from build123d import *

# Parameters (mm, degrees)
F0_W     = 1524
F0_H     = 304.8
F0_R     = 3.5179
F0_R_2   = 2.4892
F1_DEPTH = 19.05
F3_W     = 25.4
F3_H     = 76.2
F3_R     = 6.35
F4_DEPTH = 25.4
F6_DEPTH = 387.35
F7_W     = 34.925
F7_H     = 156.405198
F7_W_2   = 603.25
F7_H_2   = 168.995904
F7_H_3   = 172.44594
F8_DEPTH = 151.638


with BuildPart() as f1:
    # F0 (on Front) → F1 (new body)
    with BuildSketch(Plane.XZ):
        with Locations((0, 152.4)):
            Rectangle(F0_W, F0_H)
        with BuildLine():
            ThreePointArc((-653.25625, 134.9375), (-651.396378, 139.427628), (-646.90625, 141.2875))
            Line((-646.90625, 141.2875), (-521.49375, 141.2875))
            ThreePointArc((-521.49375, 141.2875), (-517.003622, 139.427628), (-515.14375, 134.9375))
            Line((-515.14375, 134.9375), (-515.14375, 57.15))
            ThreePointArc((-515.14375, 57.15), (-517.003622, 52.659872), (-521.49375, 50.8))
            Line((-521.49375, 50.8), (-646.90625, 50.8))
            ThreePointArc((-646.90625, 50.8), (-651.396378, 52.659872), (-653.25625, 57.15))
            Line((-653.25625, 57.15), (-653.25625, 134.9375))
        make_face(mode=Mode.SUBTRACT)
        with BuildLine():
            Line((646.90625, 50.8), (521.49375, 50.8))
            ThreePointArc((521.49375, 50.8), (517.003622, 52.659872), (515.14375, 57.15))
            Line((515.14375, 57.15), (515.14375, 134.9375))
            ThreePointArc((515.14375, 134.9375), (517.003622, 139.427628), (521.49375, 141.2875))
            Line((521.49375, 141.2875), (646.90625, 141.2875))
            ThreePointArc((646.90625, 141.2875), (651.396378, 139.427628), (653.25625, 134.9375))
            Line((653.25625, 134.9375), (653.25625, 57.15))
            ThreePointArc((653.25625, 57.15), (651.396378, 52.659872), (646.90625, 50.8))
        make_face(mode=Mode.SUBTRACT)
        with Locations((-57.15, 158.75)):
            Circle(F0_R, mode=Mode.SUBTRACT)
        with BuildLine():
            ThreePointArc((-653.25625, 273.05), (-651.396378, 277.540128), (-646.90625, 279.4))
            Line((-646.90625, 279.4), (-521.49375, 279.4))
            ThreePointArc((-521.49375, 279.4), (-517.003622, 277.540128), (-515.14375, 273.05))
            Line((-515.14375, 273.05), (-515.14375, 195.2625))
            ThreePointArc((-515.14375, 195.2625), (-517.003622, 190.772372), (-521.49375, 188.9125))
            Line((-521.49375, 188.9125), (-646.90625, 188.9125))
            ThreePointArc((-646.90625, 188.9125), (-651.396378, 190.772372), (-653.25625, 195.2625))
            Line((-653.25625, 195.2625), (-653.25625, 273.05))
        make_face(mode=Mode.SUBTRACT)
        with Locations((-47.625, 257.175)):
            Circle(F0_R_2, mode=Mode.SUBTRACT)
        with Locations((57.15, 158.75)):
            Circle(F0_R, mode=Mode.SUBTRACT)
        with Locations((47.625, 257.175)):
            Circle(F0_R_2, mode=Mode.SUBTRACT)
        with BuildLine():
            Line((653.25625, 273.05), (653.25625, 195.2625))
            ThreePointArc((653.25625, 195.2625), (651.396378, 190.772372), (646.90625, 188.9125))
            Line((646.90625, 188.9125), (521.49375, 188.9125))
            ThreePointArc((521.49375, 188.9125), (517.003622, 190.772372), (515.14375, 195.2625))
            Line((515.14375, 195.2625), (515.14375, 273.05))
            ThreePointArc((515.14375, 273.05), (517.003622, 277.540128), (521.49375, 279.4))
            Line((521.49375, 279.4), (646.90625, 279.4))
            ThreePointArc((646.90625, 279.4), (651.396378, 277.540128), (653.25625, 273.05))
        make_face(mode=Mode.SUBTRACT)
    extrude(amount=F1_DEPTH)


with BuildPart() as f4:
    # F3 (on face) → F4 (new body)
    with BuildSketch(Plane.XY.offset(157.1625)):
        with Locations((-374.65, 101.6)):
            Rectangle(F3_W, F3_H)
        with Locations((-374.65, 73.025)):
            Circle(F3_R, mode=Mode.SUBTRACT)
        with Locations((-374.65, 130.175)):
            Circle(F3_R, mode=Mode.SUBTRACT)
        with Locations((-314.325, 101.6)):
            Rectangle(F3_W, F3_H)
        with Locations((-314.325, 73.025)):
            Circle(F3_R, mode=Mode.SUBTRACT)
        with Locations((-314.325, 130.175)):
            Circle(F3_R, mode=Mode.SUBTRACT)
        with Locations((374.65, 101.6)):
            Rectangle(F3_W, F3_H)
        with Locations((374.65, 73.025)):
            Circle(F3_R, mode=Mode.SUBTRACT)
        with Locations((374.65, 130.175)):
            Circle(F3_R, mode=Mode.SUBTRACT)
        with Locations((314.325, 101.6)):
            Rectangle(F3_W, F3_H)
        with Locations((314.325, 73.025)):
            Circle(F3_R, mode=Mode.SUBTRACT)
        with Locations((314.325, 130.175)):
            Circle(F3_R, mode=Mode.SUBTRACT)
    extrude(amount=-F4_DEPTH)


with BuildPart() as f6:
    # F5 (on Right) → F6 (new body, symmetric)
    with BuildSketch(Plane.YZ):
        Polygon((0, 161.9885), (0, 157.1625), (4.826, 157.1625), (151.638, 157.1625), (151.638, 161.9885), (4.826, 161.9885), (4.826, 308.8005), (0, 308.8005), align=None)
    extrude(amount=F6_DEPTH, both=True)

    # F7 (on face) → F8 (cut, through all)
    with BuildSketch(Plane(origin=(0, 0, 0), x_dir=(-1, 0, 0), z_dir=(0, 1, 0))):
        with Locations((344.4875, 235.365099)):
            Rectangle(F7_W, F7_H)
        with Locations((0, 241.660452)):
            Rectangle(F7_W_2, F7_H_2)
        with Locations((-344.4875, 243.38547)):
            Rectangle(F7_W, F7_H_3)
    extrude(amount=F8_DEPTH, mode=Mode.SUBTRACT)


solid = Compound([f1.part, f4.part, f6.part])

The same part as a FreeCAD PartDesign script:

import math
import FreeCAD as App
import Part
import Sketcher
Q = App.Units.Quantity


def add_polygon(sketch, points):
    """Adds a closed chain of lines whose ends are joined by coincident constraints."""
    first, n = sketch.GeometryCount, len(points)
    for a, b in zip(points, points[1:] + points[:1]):
        sketch.addGeometry(Part.LineSegment(App.Vector(*a, 0), App.Vector(*b, 0)), False)
    for i in range(n):
        sketch.addConstraint(Sketcher.Constraint("Coincident", first + i, 2, first + (i + 1) % n, 1))

doc = App.newDocument("Part")
body = doc.addObject("PartDesign::Body", "Body")

sketch1 = doc.addObject("Sketcher::SketchObject", "Sketch")
body.addObject(sketch1)
sketch1.AttachmentSupport = (doc.XZ_Plane, [""])
sketch1.MapMode = "FlatFace"
add_polygon(sketch1, [(-762, 304.8), (-762, 0), (762, 0), (762, 304.8)])
sketch1.addGeometry(Part.LineSegment(App.Vector(-653.3, 57.1, 0), App.Vector(-653.3, 134.9, 0)), False)
sketch1.addGeometry(Part.ArcOfCircle(Part.Circle(App.Vector(-646.9, 134.9, 0), App.Vector(0, 0, 1), 6.4), math.radians(90), math.radians(180)), False)
sketch1.addGeometry(Part.LineSegment(App.Vector(-646.9, 141.3, 0), App.Vector(-521.5, 141.3, 0)), False)
sketch1.addGeometry(Part.ArcOfCircle(Part.Circle(App.Vector(-521.5, 134.9, 0), App.Vector(0, 0, 1), 6.4), math.radians(0), math.radians(90)), False)
sketch1.addGeometry(Part.LineSegment(App.Vector(-515.1, 134.9, 0), App.Vector(-515.1, 57.1, 0)), False)
sketch1.addGeometry(Part.ArcOfCircle(Part.Circle(App.Vector(-521.5, 57.2, 0), App.Vector(0, 0, 1), 6.4), math.radians(-90), math.radians(0)), False)
sketch1.addGeometry(Part.LineSegment(App.Vector(-521.5, 50.8, 0), App.Vector(-646.9, 50.8, 0)), False)
sketch1.addGeometry(Part.ArcOfCircle(Part.Circle(App.Vector(-646.9, 57.2, 0), App.Vector(0, 0, 1), 6.4), math.radians(-180), math.radians(-90)), False)
sketch1.addGeometry(Part.Circle(App.Vector(-57.1, 158.8, 0), App.Vector(0, 0, 1), 3.5), False)
sketch1.addGeometry(Part.ArcOfCircle(Part.Circle(App.Vector(646.9, 57.2, 0), App.Vector(0, 0, 1), 6.4), math.radians(-90), math.radians(0)), False)
sketch1.addGeometry(Part.LineSegment(App.Vector(646.9, 50.8, 0), App.Vector(521.5, 50.8, 0)), False)
sketch1.addGeometry(Part.ArcOfCircle(Part.Circle(App.Vector(521.5, 57.2, 0), App.Vector(0, 0, 1), 6.4), math.radians(-180), math.radians(-90)), False)
sketch1.addGeometry(Part.LineSegment(App.Vector(515.1, 57.1, 0), App.Vector(515.1, 134.9, 0)), False)
sketch1.addGeometry(Part.ArcOfCircle(Part.Circle(App.Vector(521.5, 134.9, 0), App.Vector(0, 0, 1), 6.4), math.radians(90), math.radians(180)), False)
sketch1.addGeometry(Part.LineSegment(App.Vector(521.5, 141.3, 0), App.Vector(646.9, 141.3, 0)), False)
sketch1.addGeometry(Part.ArcOfCircle(Part.Circle(App.Vector(646.9, 134.9, 0), App.Vector(0, 0, 1), 6.4), math.radians(0), math.radians(90)), False)
sketch1.addGeometry(Part.LineSegment(App.Vector(653.3, 134.9, 0), App.Vector(653.3, 57.1, 0)), False)
sketch1.addGeometry(Part.Circle(App.Vector(57.1, 158.8, 0), App.Vector(0, 0, 1), 3.5), False)
sketch1.addGeometry(Part.LineSegment(App.Vector(-653.3, 195.3, 0), App.Vector(-653.3, 273.1, 0)), False)
sketch1.addGeometry(Part.ArcOfCircle(Part.Circle(App.Vector(-646.9, 273, 0), App.Vector(0, 0, 1), 6.4), math.radians(90), math.radians(180)), False)
sketch1.addGeometry(Part.LineSegment(App.Vector(-646.9, 279.4, 0), App.Vector(-521.5, 279.4, 0)), False)
sketch1.addGeometry(Part.ArcOfCircle(Part.Circle(App.Vector(-521.5, 273, 0), App.Vector(0, 0, 1), 6.4), math.radians(0), math.radians(90)), False)
sketch1.addGeometry(Part.LineSegment(App.Vector(-515.1, 273.1, 0), App.Vector(-515.1, 195.3, 0)), False)
sketch1.addGeometry(Part.ArcOfCircle(Part.Circle(App.Vector(-521.5, 195.3, 0), App.Vector(0, 0, 1), 6.4), math.radians(-90), math.radians(0)), False)
sketch1.addGeometry(Part.LineSegment(App.Vector(-521.5, 188.9, 0), App.Vector(-646.9, 188.9, 0)), False)
sketch1.addGeometry(Part.ArcOfCircle(Part.Circle(App.Vector(-646.9, 195.3, 0), App.Vector(0, 0, 1), 6.4), math.radians(-180), math.radians(-90)), False)
sketch1.addGeometry(Part.Circle(App.Vector(-47.6, 257.2, 0), App.Vector(0, 0, 1), 2.5), False)
sketch1.addGeometry(Part.Circle(App.Vector(47.6, 257.2, 0), App.Vector(0, 0, 1), 2.5), False)
sketch1.addGeometry(Part.ArcOfCircle(Part.Circle(App.Vector(646.9, 273, 0), App.Vector(0, 0, 1), 6.4), math.radians(0), math.radians(90)), False)
sketch1.addGeometry(Part.LineSegment(App.Vector(653.3, 273.1, 0), App.Vector(653.3, 195.3, 0)), False)
sketch1.addGeometry(Part.ArcOfCircle(Part.Circle(App.Vector(646.9, 195.3, 0), App.Vector(0, 0, 1), 6.4), math.radians(-90), math.radians(0)), False)
sketch1.addGeometry(Part.LineSegment(App.Vector(646.9, 188.9, 0), App.Vector(521.5, 188.9, 0)), False)
sketch1.addGeometry(Part.ArcOfCircle(Part.Circle(App.Vector(521.5, 195.3, 0), App.Vector(0, 0, 1), 6.4), math.radians(-180), math.radians(-90)), False)
sketch1.addGeometry(Part.LineSegment(App.Vector(515.1, 195.3, 0), App.Vector(515.1, 273.1, 0)), False)
sketch1.addGeometry(Part.ArcOfCircle(Part.Circle(App.Vector(521.5, 273, 0), App.Vector(0, 0, 1), 6.4), math.radians(90), math.radians(180)), False)
sketch1.addGeometry(Part.LineSegment(App.Vector(521.5, 279.4, 0), App.Vector(646.9, 279.4, 0)), False)
sketch1.addConstraint([
    Sketcher.Constraint("Tangent", 4, 2, 5, 2),
    Sketcher.Constraint("Tangent", 5, 1, 6, 1),
    Sketcher.Constraint("Tangent", 6, 2, 7, 2),
    Sketcher.Constraint("Tangent", 7, 1, 8, 1),
    Sketcher.Constraint("Tangent", 8, 2, 9, 2),
    Sketcher.Constraint("Tangent", 9, 1, 10, 1),
    Sketcher.Constraint("Tangent", 10, 2, 11, 2),
    Sketcher.Constraint("Tangent", 11, 1, 4, 1),
    Sketcher.Constraint("Tangent", 13, 1, 14, 1),
    Sketcher.Constraint("Tangent", 14, 2, 15, 2),
    Sketcher.Constraint("Tangent", 15, 1, 16, 1),
    Sketcher.Constraint("Tangent", 16, 2, 17, 2),
    Sketcher.Constraint("Tangent", 17, 1, 18, 1),
    Sketcher.Constraint("Tangent", 18, 2, 19, 2),
    Sketcher.Constraint("Tangent", 19, 1, 20, 1),
    Sketcher.Constraint("Tangent", 20, 2, 13, 2),
    Sketcher.Constraint("Tangent", 22, 2, 23, 2),
    Sketcher.Constraint("Tangent", 23, 1, 24, 1),
    Sketcher.Constraint("Tangent", 24, 2, 25, 2),
    Sketcher.Constraint("Tangent", 25, 1, 26, 1),
    Sketcher.Constraint("Tangent", 26, 2, 27, 2),
    Sketcher.Constraint("Tangent", 27, 1, 28, 1),
    Sketcher.Constraint("Tangent", 28, 2, 29, 2),
    Sketcher.Constraint("Tangent", 29, 1, 22, 1),
    Sketcher.Constraint("Tangent", 32, 1, 33, 1),
    Sketcher.Constraint("Tangent", 33, 2, 34, 2),
    Sketcher.Constraint("Tangent", 34, 1, 35, 1),
    Sketcher.Constraint("Tangent", 35, 2, 36, 2),
    Sketcher.Constraint("Tangent", 36, 1, 37, 1),
    Sketcher.Constraint("Tangent", 37, 2, 38, 2),
    Sketcher.Constraint("Tangent", 38, 1, 39, 1),
    Sketcher.Constraint("Tangent", 39, 2, 32, 2),
    Sketcher.Constraint("Vertical", 0),
    Sketcher.Constraint("Horizontal", 1),
    Sketcher.Constraint("Vertical", 2),
    Sketcher.Constraint("Horizontal", 3),
    Sketcher.Constraint("Vertical", 4),
    Sketcher.Constraint("Horizontal", 6),
    Sketcher.Constraint("Vertical", 8),
    Sketcher.Constraint("Horizontal", 10),
    Sketcher.Constraint("Horizontal", 14),
    Sketcher.Constraint("Vertical", 16),
    Sketcher.Constraint("Horizontal", 18),
    Sketcher.Constraint("Vertical", 20),
    Sketcher.Constraint("Vertical", 22),
    Sketcher.Constraint("Horizontal", 24),
    Sketcher.Constraint("Vertical", 26),
    Sketcher.Constraint("Horizontal", 28),
    Sketcher.Constraint("Vertical", 33),
    Sketcher.Constraint("Horizontal", 35),
    Sketcher.Constraint("Vertical", 37),
    Sketcher.Constraint("Horizontal", 39),
    Sketcher.Constraint("Equal", 5, 7),
    Sketcher.Constraint("Equal", 7, 9),
    Sketcher.Constraint("Equal", 9, 11),
    Sketcher.Constraint("Equal", 11, 13),
    Sketcher.Constraint("Equal", 13, 15),
    Sketcher.Constraint("Equal", 15, 17),
    Sketcher.Constraint("Equal", 17, 19),
    Sketcher.Constraint("Equal", 12, 21),
    Sketcher.Constraint("Equal", 19, 23),
    Sketcher.Constraint("Equal", 23, 25),
    Sketcher.Constraint("Equal", 25, 27),
    Sketcher.Constraint("Equal", 27, 29),
    Sketcher.Constraint("Equal", 30, 31),
    Sketcher.Constraint("Equal", 29, 32),
    Sketcher.Constraint("Equal", 32, 34),
    Sketcher.Constraint("Equal", 34, 36),
    Sketcher.Constraint("Equal", 36, 38),
    Sketcher.Constraint("Symmetric", 0, 2, 1, 2, -1, 1),
    Sketcher.Constraint("Symmetric", 11, 3, 13, 3, -2),
    Sketcher.Constraint("Symmetric", 7, 3, 17, 3, -2),
    Sketcher.Constraint("Symmetric", 12, 3, 21, 3, -2),
    Sketcher.Constraint("Symmetric", 30, 3, 31, 3, -2),
    Sketcher.Constraint("Symmetric", 23, 3, 32, 3, -2),
    Sketcher.Constraint("Symmetric", 27, 3, 36, 3, -2),
    Sketcher.Constraint("Vertical", 11, 3, 23, 3),
    Sketcher.Constraint("Vertical", 9, 3, 25, 3),
    Sketcher.Constraint("Equal", 20, 22),
    Sketcher.Constraint("DistanceX", 1, 1, 1, 2, Q("60 in")),
    Sketcher.Constraint("DistanceY", 0, 2, 0, 1, Q("12 in")),
    Sketcher.Constraint("Radius", 5, Q("0.25 in")),
    Sketcher.Constraint("Diameter", 12, Q("0.277 in")),
    Sketcher.Constraint("Diameter", 30, Q("0.196 in")),
    Sketcher.Constraint("DistanceY", -1, 1, 9, 1, Q("2 in")),
    Sketcher.Constraint("DistanceY", -1, 1, 23, 1, Q("11 in")),
    Sketcher.Constraint("DistanceY", 9, 3, 12, 3, Q("4 in")),
    Sketcher.Constraint("DistanceX", 9, 3, 13, 3, Q("46 in")),
    Sketcher.Constraint("DistanceX", 12, 3, 21, 3, Q("4.5 in")),
    Sketcher.Constraint("DistanceX", 6, 1, 6, 2, Q("4.9375 in")),
    Sketcher.Constraint("DistanceY", 4, 1, 4, 2, Q("3.0625 in")),
    Sketcher.Constraint("DistanceX", 30, 3, 31, 3, Q("3.75 in")),
    Sketcher.Constraint("DistanceY", -1, 1, 30, 3, Q("10.125 in")),
])
pad1 = doc.addObject("PartDesign::Pad", "Pad")
body.addObject(pad1)
pad1.Profile = sketch1
pad1.Length = Q("0.75 in")
body2 = doc.addObject("PartDesign::Body", "Body001")
body2.AllowCompound = True

sketch2 = doc.addObject("Sketcher::SketchObject", "Sketch001")
body2.addObject(sketch2)
sketch2.AttachmentSupport = (doc.getObject("XY_Plane001"), [""])
sketch2.MapMode = "FlatFace"
sketch2.AttachmentOffset = App.Placement(App.Vector(0, 0, 6.1875 * 25.4), App.Rotation())
add_polygon(sketch2, [(-387, 140), (-387, 64), (-362, 64), (-362, 140)])
sketch2.addGeometry(Part.Circle(App.Vector(-375, 73, 0), App.Vector(0, 0, 1), 6), False)
sketch2.addGeometry(Part.Circle(App.Vector(-375, 130, 0), App.Vector(0, 0, 1), 6), False)
add_polygon(sketch2, [(-327, 140), (-327, 64), (-302, 64), (-302, 140)])
sketch2.addGeometry(Part.Circle(App.Vector(-314, 73, 0), App.Vector(0, 0, 1), 6), False)
sketch2.addGeometry(Part.Circle(App.Vector(-314, 130, 0), App.Vector(0, 0, 1), 6), False)
add_polygon(sketch2, [(362, 140), (362, 64), (387, 64), (387, 140)])
sketch2.addGeometry(Part.Circle(App.Vector(375, 73, 0), App.Vector(0, 0, 1), 6), False)
sketch2.addGeometry(Part.Circle(App.Vector(375, 130, 0), App.Vector(0, 0, 1), 6), False)
add_polygon(sketch2, [(302, 140), (302, 64), (327, 64), (327, 140)])
sketch2.addGeometry(Part.Circle(App.Vector(314, 73, 0), App.Vector(0, 0, 1), 6), False)
sketch2.addGeometry(Part.Circle(App.Vector(314, 130, 0), App.Vector(0, 0, 1), 6), False)
sketch2.addConstraint([
    Sketcher.Constraint("Vertical", 0),
    Sketcher.Constraint("Horizontal", 1),
    Sketcher.Constraint("Vertical", 2),
    Sketcher.Constraint("Horizontal", 3),
    Sketcher.Constraint("Vertical", 6),
    Sketcher.Constraint("Horizontal", 7),
    Sketcher.Constraint("Vertical", 8),
    Sketcher.Constraint("Horizontal", 9),
    Sketcher.Constraint("Vertical", 12),
    Sketcher.Constraint("Horizontal", 13),
    Sketcher.Constraint("Vertical", 14),
    Sketcher.Constraint("Horizontal", 15),
    Sketcher.Constraint("Vertical", 18),
    Sketcher.Constraint("Horizontal", 19),
    Sketcher.Constraint("Vertical", 20),
    Sketcher.Constraint("Horizontal", 21),
    Sketcher.Constraint("Equal", 4, 5),
    Sketcher.Constraint("Equal", 5, 10),
    Sketcher.Constraint("Equal", 10, 11),
    Sketcher.Constraint("Equal", 11, 16),
    Sketcher.Constraint("Equal", 16, 17),
    Sketcher.Constraint("Equal", 17, 22),
    Sketcher.Constraint("Equal", 22, 23),
    Sketcher.Constraint("Symmetric", 4, 3, 16, 3, -2),
    Sketcher.Constraint("Symmetric", 5, 3, 17, 3, -2),
    Sketcher.Constraint("Symmetric", 10, 3, 22, 3, -2),
    Sketcher.Constraint("Symmetric", 11, 3, 23, 3, -2),
    Sketcher.Constraint("Symmetric", 1, 2, 12, 2, -2),
    Sketcher.Constraint("Symmetric", 3, 2, 14, 2, -2),
    Sketcher.Constraint("Symmetric", 7, 2, 18, 2, -2),
    Sketcher.Constraint("Symmetric", 9, 2, 20, 2, -2),
    Sketcher.Constraint("Horizontal", 4, 3, 10, 3),
    Sketcher.Constraint("Horizontal", 5, 3, 11, 3),
    Sketcher.Constraint("Horizontal", 1, 2, 6, 2),
    Sketcher.Constraint("Horizontal", 3, 2, 8, 2),
    Sketcher.Constraint("Vertical", 4, 3, 5, 3),
    Sketcher.Constraint("Vertical", 10, 3, 11, 3),
    Sketcher.Constraint("Equal", 3, 7),
    Sketcher.Constraint("Diameter", 4, Q("0.5 in")),
    Sketcher.Constraint("DistanceX", 1, 1, 1, 2, Q("1 in")),
    Sketcher.Constraint("DistanceY", 0, 2, 0, 1, Q("3 in")),
    Sketcher.Constraint("DistanceY", -1, 1, 0, 2, Q("2.5 in")),
    Sketcher.Constraint("DistanceX", 4, 3, 16, 3, Q("29.5 in")),
    Sketcher.Constraint("DistanceX", 0, 2, 4, 3, Q("0.5 in")),
    Sketcher.Constraint("DistanceX", 6, 2, 10, 3, Q("0.5 in")),
    Sketcher.Constraint("DistanceY", 4, 3, 5, 3, Q("2.25 in")),
    Sketcher.Constraint("DistanceX", 10, 3, 22, 3, Q("24.75 in")),
    Sketcher.Constraint("DistanceY", -1, 1, 4, 3, Q("2.875 in")),
])
pad2 = doc.addObject("PartDesign::Pad", "Pad001")
body2.addObject(pad2)
pad2.Profile = sketch2
pad2.Length = Q("1 in")
pad2.Reversed = True
body3 = doc.addObject("PartDesign::Body", "Body002")
body3.AllowCompound = True

sketch3 = doc.addObject("Sketcher::SketchObject", "Sketch002")
body3.addObject(sketch3)
sketch3.AttachmentSupport = (doc.getObject("YZ_Plane002"), [""])
sketch3.MapMode = "FlatFace"
add_polygon(sketch3, [(0, 157.2), (151.6, 157.2), (151.6, 162), (4.8, 162), (4.8, 308.8), (0, 308.8)])
sketch3.addConstraint([
    Sketcher.Constraint("Horizontal", 0),
    Sketcher.Constraint("Vertical", 1),
    Sketcher.Constraint("Horizontal", 2),
    Sketcher.Constraint("Vertical", 3),
    Sketcher.Constraint("Horizontal", 4),
    Sketcher.Constraint("Vertical", 5),
    Sketcher.Constraint("PointOnObject", 4, 2, -2),
    Sketcher.Constraint("Equal", 4, 1),
    Sketcher.Constraint("Equal", 2, 3),
    Sketcher.Constraint("DistanceX", 0, 1, 0, 2, Q("5.97 in")),
    Sketcher.Constraint("DistanceX", 2, 2, 2, 1, Q("5.78 in")),
    Sketcher.Constraint("DistanceY", -1, 1, 0, 2, Q("6.1875 in")),
])
pad3 = doc.addObject("PartDesign::Pad", "Pad002")
body3.addObject(pad3)
pad3.Profile = sketch3
pad3.Length = Q("30.5 in")
pad3.Midplane = True

sketch4 = doc.addObject("Sketcher::SketchObject", "Sketch003")
body3.addObject(sketch4)
sketch4.AttachmentSupport = (doc.getObject("XZ_Plane002"), [""])
sketch4.MapMode = "FlatFace"
add_polygon(sketch4, [(-327, 314), (-327, 157), (-362, 157), (-362, 314)])
add_polygon(sketch4, [(302, 326), (302, 157), (-302, 157), (-302, 326)])
add_polygon(sketch4, [(362, 330), (362, 157), (327, 157), (327, 330)])
sketch4.addConstraint([
    Sketcher.Constraint("Vertical", 0),
    Sketcher.Constraint("Horizontal", 1),
    Sketcher.Constraint("Vertical", 2),
    Sketcher.Constraint("Horizontal", 3),
    Sketcher.Constraint("Vertical", 4),
    Sketcher.Constraint("Horizontal", 5),
    Sketcher.Constraint("Vertical", 6),
    Sketcher.Constraint("Horizontal", 7),
    Sketcher.Constraint("Vertical", 8),
    Sketcher.Constraint("Horizontal", 9),
    Sketcher.Constraint("Vertical", 10),
    Sketcher.Constraint("Horizontal", 11),
    Sketcher.Constraint("Symmetric", 1, 2, 8, 2, -2),
    Sketcher.Constraint("Horizontal", 1, 2, 4, 2),
    Sketcher.Constraint("Equal", 3, 9),
    Sketcher.Constraint("DistanceX", 0, 2, 5, 2, Q("1 in")),
    Sketcher.Constraint("DistanceX", 4, 2, 9, 2, Q("1 in")),
    Sketcher.Constraint("DistanceX", 5, 2, 5, 1, Q("23.75 in")),
    Sketcher.Constraint("DistanceX", 1, 2, 1, 1, Q("1.375 in")),
    Sketcher.Constraint("DistanceY", -1, 1, 0, 2, Q("6.1875 in")),
    Sketcher.Constraint("DistanceY", 0, 2, 0, 1, 156.405198),
    Sketcher.Constraint("DistanceY", 8, 2, 8, 1, 172.44594),
    Sketcher.Constraint("DistanceY", 4, 2, 4, 1, 168.995904),
])
pocket1 = doc.addObject("PartDesign::Pocket", "Pocket")
body3.addObject(pocket1)
pocket1.Profile = sketch4
pocket1.Type = "ThroughAll"

doc.recompute()
